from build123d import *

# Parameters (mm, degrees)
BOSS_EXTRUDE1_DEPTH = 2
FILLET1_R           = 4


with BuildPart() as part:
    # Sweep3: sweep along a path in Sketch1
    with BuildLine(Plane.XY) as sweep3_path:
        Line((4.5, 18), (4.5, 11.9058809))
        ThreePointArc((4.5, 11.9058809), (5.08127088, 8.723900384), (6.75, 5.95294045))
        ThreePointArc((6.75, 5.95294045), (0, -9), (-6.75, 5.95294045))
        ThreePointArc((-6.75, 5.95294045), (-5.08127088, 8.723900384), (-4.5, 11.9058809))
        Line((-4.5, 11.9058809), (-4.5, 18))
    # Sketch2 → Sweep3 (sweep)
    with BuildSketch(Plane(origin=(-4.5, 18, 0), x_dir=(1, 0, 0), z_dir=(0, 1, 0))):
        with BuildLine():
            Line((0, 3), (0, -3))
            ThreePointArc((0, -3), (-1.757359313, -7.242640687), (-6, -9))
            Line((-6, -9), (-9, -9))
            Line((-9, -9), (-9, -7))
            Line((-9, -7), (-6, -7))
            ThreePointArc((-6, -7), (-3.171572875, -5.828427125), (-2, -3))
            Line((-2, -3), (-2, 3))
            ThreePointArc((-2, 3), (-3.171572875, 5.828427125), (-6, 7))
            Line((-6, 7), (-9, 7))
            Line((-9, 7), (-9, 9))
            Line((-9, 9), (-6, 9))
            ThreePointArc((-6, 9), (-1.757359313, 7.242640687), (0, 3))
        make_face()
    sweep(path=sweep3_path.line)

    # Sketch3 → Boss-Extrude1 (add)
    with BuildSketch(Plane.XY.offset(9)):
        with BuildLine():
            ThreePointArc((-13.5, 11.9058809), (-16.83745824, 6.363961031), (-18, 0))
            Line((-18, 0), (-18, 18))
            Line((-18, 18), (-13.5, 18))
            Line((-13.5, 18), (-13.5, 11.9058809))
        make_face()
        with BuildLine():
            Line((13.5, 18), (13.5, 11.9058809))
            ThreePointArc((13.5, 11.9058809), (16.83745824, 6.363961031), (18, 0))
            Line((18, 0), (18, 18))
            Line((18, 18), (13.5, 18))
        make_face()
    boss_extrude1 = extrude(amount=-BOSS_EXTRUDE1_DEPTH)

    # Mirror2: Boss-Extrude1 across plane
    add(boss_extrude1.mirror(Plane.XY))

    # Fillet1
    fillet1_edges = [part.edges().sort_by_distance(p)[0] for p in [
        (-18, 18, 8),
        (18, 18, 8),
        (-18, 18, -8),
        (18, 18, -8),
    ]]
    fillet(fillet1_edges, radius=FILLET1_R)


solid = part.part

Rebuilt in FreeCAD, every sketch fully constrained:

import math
import FreeCAD as App
import Part
import Sketcher
Q = App.Units.Quantity


def edges_at(feature, points):
    """Names of the edges that pass closest to the given points."""
    edges = feature.Shape.Edges
    near = lambda p: min(range(len(edges)), key=lambda i: edges[i].distToShape(Part.Vertex(*p))[0])
    return sorted({f"Edge{near(p) + 1}" for p in points})

doc = App.newDocument("Part")
params = doc.addObject("Spreadsheet::Sheet", "Params")
for row, (alias, value) in enumerate([
    ("sketch1_radius", "6 mm"),
    ("sketch1_radius2", "4 mm"),
    ("sketch1_width", "3 mm"),
    ("sketch1_height", "6 mm"),
    ("sketch2_radius", "9 mm"),
    ("sketch3_radius", "18 mm"),
    ("sketch3_height", "18 mm"),
    ("sketch3_width", "4.5 mm"),
    ("pad1_length", "2 mm"),
    ("fillet_radius", "4 mm"),
], start=1):
    params.set(f"A{row}", alias)
    params.set(f"B{row}", "=" + value)
    params.setAlias(f"B{row}", alias)

body = doc.addObject("PartDesign::Body", "Body")

sketch1 = body.newObject("Sketcher::SketchObject", "Sketch")
sketch1.AttachmentSupport = (doc.getObject("XZ_Plane"), [""])
sketch1.MapMode = "FlatFace"
sketch1.AttachmentOffset = App.Placement(App.Vector(0, 0, -18), App.Rotation())
sketch1.addGeometry(Part.LineSegment(App.Vector(-4.5, 3, 0), App.Vector(-4.5, -3, 0)), False)
sketch1.addGeometry(Part.ArcOfCircle(Part.Circle(App.Vector(-10.5, -3, 0), App.Vector(0, 0, 1), 6), math.radians(-90), math.radians(0)), False)
sketch1.addGeometry(Part.LineSegment(App.Vector(-10.5, -9, 0), App.Vector(-13.5, -9, 0)), False)
sketch1.addGeometry(Part.LineSegment(App.Vector(-13.5, -9, 0), App.Vector(-13.5, -7, 0)), False)
sketch1.addGeometry(Part.LineSegment(App.Vector(-13.5, -7, 0), App.Vector(-10.5, -7, 0)), False)
sketch1.addGeometry(Part.ArcOfCircle(Part.Circle(App.Vector(-10.5, -3, 0), App.Vector(0, 0, 1), 4), math.radians(-90), math.radians(0)), False)
sketch1.addGeometry(Part.LineSegment(App.Vector(-6.5, -3, 0), App.Vector(-6.5, 3, 0)), False)
sketch1.addGeometry(Part.ArcOfCircle(Part.Circle(App.Vector(-10.5, 3, 0), App.Vector(0, 0, 1), 4), math.radians(0), math.radians(90)), False)
sketch1.addGeometry(Part.LineSegment(App.Vector(-10.5, 7, 0), App.Vector(-13.5, 7, 0)), False)
sketch1.addGeometry(Part.LineSegment(App.Vector(-13.5, 7, 0), App.Vector(-13.5, 9, 0)), False)
sketch1.addGeometry(Part.LineSegment(App.Vector(-13.5, 9, 0), App.Vector(-10.5, 9, 0)), False)
sketch1.addGeometry(Part.ArcOfCircle(Part.Circle(App.Vector(-10.5, 3, 0), App.Vector(0, 0, 1), 6), math.radians(0), math.radians(90)), False)
sketch1.addConstraint(Sketcher.Constraint("Tangent", 0, 2, 1, 2))
sketch1.addConstraint(Sketcher.Constraint("Tangent", 1, 1, 2, 1))
sketch1.addConstraint(Sketcher.Constraint("Coincident", 2, 2, 3, 1))
sketch1.addConstraint(Sketcher.Constraint("Coincident", 3, 2, 4, 1))
sketch1.addConstraint(Sketcher.Constraint("Tangent", 4, 2, 5, 1))
sketch1.addConstraint(Sketcher.Constraint("Tangent", 5, 2, 6, 1))
sketch1.addConstraint(Sketcher.Constraint("Tangent", 6, 2, 7, 1))
sketch1.addConstraint(Sketcher.Constraint("Tangent", 7, 2, 8, 1))
sketch1.addConstraint(Sketcher.Constraint("Coincident", 8, 2, 9, 1))
sketch1.addConstraint(Sketcher.Constraint("Coincident", 9, 2, 10, 1))
sketch1.addConstraint(Sketcher.Constraint("Tangent", 10, 2, 11, 2))
sketch1.addConstraint(Sketcher.Constraint("Tangent", 11, 1, 0, 1))
sketch1.addConstraint(Sketcher.Constraint("Vertical", 0))
sketch1.addConstraint(Sketcher.Constraint("Horizontal", 2))
sketch1.addConstraint(Sketcher.Constraint("Vertical", 3))
sketch1.addConstraint(Sketcher.Constraint("Horizontal", 4))
sketch1.addConstraint(Sketcher.Constraint("Vertical", 6))
sketch1.addConstraint(Sketcher.Constraint("Horizontal", 8))
sketch1.addConstraint(Sketcher.Constraint("Vertical", 9))
sketch1.addConstraint(Sketcher.Constraint("Horizontal", 10))
sketch1.addConstraint(Sketcher.Constraint("Coincident", 5, 3, 1, 3))
sketch1.addConstraint(Sketcher.Constraint("Coincident", 11, 3, 7, 3))
sketch1.addConstraint(Sketcher.Constraint("Equal", 5, 7))
sketch1.addConstraint(Sketcher.Constraint("Symmetric", 3, 2, 8, 2, -1))
sketch1.addConstraint(Sketcher.Constraint("Radius", 1, Q("6 mm")))
sketch1.addConstraint(Sketcher.Constraint("Radius", 5, Q("4 mm")))
sketch1.addConstraint(Sketcher.Constraint("DistanceX", 2, 2, 2, 1, Q("3 mm")))
sketch1.addConstraint(Sketcher.Constraint("DistanceY", 0, 2, 0, 1, Q("6 mm")))
sketch1.addConstraint(Sketcher.Constraint("DistanceX", 1, 3, -1, 1, Q("10.5 mm")))
sketch1.setExpression("Constraints[24]", "Params.sketch1_radius")
sketch1.setExpression("Constraints[25]", "Params.sketch1_radius2")
sketch1.setExpression("Constraints[26]", "Params.sketch1_width")
sketch1.setExpression("Constraints[27]", "Params.sketch1_height")

sketch2 = body.newObject("Sketcher::SketchObject", "Sketch001")
sketch2.AttachmentSupport = (doc.getObject("XY_Plane"), [""])
sketch2.MapMode = "FlatFace"
sketch2.addGeometry(Part.LineSegment(App.Vector(4, 18, 0), App.Vector(4, 12, 0)), False)
sketch2.addGeometry(Part.ArcOfCircle(Part.Circle(App.Vector(14, 12, 0), App.Vector(0, 0, 1), 9), math.radians(180), math.radians(221)), False)
sketch2.addGeometry(Part.ArcOfCircle(Part.Circle(App.Vector(0, 0, 0), App.Vector(0, 0, 1), 9), math.radians(139), math.radians(401)), False)
sketch2.addGeometry(Part.ArcOfCircle(Part.Circle(App.Vector(-14, 12, 0), App.Vector(0, 0, 1), 9), math.radians(-41), math.radians(0)), False)
sketch2.addGeometry(Part.LineSegment(App.Vector(-4, 12, 0), App.Vector(-4, 18, 0)), False)
sketch2.addConstraint(Sketcher.Constraint("Tangent", 0, 2, 1, 1))
sketch2.addConstraint(Sketcher.Constraint("Tangent", 1, 2, 2, 2))
sketch2.addConstraint(Sketcher.Constraint("Tangent", 2, 1, 3, 1))
sketch2.addConstraint(Sketcher.Constraint("Tangent", 3, 2, 4, 1))
sketch2.addConstraint(Sketcher.Constraint("Vertical", 0))
sketch2.addConstraint(Sketcher.Constraint("Vertical", 4))
sketch2.addConstraint(Sketcher.Constraint("Coincident", 2, 3, -1, 1))
sketch2.addConstraint(Sketcher.Constraint("Equal", 1, 2))
sketch2.addConstraint(Sketcher.Constraint("Equal", 2, 3))
sketch2.addConstraint(Sketcher.Constraint("Symmetric", 0, 1, 4, 2, -2))
sketch2.addConstraint(Sketcher.Constraint("Radius", 1, Q("9 mm")))
sketch2.addConstraint(Sketcher.Constraint("DistanceY", -1, 1, 0, 1, Q("18 mm")))
sketch2.addConstraint(Sketcher.Constraint("DistanceX", 3, 3, 1, 3, Q("27 mm")))
sketch2.setExpression("Constraints[10]", "Params.sketch2_radius")
doc.recompute()

additivepipe = body.newObject("PartDesign::AdditivePipe", "AdditivePipe")
additivepipe.Profile = sketch1
additivepipe.Spine = (sketch2, ["Edge1", "Edge2", "Edge3", "Edge4", "Edge5"])

sketch3 = body.newObject("Sketcher::SketchObject", "Sketch002")
sketch3.AttachmentSupport = (doc.getObject("XY_Plane"), [""])
sketch3.MapMode = "FlatFace"
sketch3.AttachmentOffset = App.Placement(App.Vector(0, 0, 9), App.Rotation())
sketch3.addGeometry(Part.ArcOfCircle(Part.Circle(App.Vector(0, 0, 0), App.Vector(0, 0, 1), 18), math.radians(139), math.radians(180)), False)
sketch3.addGeometry(Part.LineSegment(App.Vector(-13.5, 11.9, 0), App.Vector(-13.5, 18, 0)), False)
sketch3.addGeometry(Part.LineSegment(App.Vector(-13.5, 18, 0), App.Vector(-18, 18, 0)), False)
sketch3.addGeometry(Part.LineSegment(App.Vector(-18, 18, 0), App.Vector(-18, 0, 0)), False)
sketch3.addGeometry(Part.LineSegment(App.Vector(13.5, 18, 0), App.Vector(13.5, 11.9, 0)), False)
sketch3.addGeometry(Part.ArcOfCircle(Part.Circle(App.Vector(0, 0, 0), App.Vector(0, 0, 1), 18), math.radians(0), math.radians(41)), False)
sketch3.addGeometry(Part.LineSegment(App.Vector(18, 0, 0), App.Vector(18, 18, 0)), False)
sketch3.addGeometry(Part.LineSegment(App.Vector(18, 18, 0), App.Vector(13.5, 18, 0)), False)
sketch3.addConstraint(Sketcher.Constraint("Coincident", 0, 1, 1, 1))
sketch3.addConstraint(Sketcher.Constraint("Coincident", 1, 2, 2, 1))
sketch3.addConstraint(Sketcher.Constraint("Coincident", 2, 2, 3, 1))
sketch3.addConstraint(Sketcher.Constraint("Tangent", 3, 2, 0, 2))
sketch3.addConstraint(Sketcher.Constraint("Coincident", 4, 2, 5, 2))
sketch3.addConstraint(Sketcher.Constraint("Tangent", 5, 1, 6, 1))
sketch3.addConstraint(Sketcher.Constraint("Coincident", 6, 2, 7, 1))
sketch3.addConstraint(Sketcher.Constraint("Coincident", 7, 2, 4, 1))
sketch3.addConstraint(Sketcher.Constraint("Vertical", 1))
sketch3.addConstraint(Sketcher.Constraint("Horizontal", 2))
sketch3.addConstraint(Sketcher.Constraint("Vertical", 3))
sketch3.addConstraint(Sketcher.Constraint("Vertical", 4))
sketch3.addConstraint(Sketcher.Constraint("Vertical", 6))
sketch3.addConstraint(Sketcher.Constraint("Horizontal", 7))
sketch3.addConstraint(Sketcher.Constraint("Coincident", 0, 3, -1, 1))
sketch3.addConstraint(Sketcher.Constraint("Coincident", 5, 3, -1, 1))
sketch3.addConstraint(Sketcher.Constraint("Equal", 0, 5))
sketch3.addConstraint(Sketcher.Constraint("Symmetric", 1, 2, 7, 2, -2))
sketch3.addConstraint(Sketcher.Constraint("Radius", 0, Q("18 mm")))
sketch3.addConstraint(Sketcher.Constraint("DistanceY", 3, 2, 3, 1, Q("18 mm")))
sketch3.addConstraint(Sketcher.Constraint("DistanceX", 2, 2, 2, 1, Q("4.5 mm")))
sketch3.setExpression("Constraints[18]", "Params.sketch3_radius")
sketch3.setExpression("Constraints[19]", "Params.sketch3_height")
sketch3.setExpression("Constraints[20]", "Params.sketch3_width")
pad1 = body.newObject("PartDesign::Pad", "Pad")
pad1.Profile = sketch3
pad1.setExpression("Length", "Params.pad1_length")
pad1.Reversed = True
doc.recompute()

mirrored = body.newObject("PartDesign::Mirrored", "Mirrored")
mirrored.Originals = [pad1]
mirrored.MirrorPlane = (doc.getObject("XY_Plane"), [""])
body.Tip = mirrored
doc.recompute()

fillet = body.newObject("PartDesign::Fillet", "Fillet")
fillet.Base = (mirrored, edges_at(mirrored, [
    (-18, 18, 8),
    (18, 18, 8),
    (-18, 18, -8),
    (18, 18, -8),
]))
fillet.setExpression("Radius", "Params.fillet_radius")

doc.recompute()
